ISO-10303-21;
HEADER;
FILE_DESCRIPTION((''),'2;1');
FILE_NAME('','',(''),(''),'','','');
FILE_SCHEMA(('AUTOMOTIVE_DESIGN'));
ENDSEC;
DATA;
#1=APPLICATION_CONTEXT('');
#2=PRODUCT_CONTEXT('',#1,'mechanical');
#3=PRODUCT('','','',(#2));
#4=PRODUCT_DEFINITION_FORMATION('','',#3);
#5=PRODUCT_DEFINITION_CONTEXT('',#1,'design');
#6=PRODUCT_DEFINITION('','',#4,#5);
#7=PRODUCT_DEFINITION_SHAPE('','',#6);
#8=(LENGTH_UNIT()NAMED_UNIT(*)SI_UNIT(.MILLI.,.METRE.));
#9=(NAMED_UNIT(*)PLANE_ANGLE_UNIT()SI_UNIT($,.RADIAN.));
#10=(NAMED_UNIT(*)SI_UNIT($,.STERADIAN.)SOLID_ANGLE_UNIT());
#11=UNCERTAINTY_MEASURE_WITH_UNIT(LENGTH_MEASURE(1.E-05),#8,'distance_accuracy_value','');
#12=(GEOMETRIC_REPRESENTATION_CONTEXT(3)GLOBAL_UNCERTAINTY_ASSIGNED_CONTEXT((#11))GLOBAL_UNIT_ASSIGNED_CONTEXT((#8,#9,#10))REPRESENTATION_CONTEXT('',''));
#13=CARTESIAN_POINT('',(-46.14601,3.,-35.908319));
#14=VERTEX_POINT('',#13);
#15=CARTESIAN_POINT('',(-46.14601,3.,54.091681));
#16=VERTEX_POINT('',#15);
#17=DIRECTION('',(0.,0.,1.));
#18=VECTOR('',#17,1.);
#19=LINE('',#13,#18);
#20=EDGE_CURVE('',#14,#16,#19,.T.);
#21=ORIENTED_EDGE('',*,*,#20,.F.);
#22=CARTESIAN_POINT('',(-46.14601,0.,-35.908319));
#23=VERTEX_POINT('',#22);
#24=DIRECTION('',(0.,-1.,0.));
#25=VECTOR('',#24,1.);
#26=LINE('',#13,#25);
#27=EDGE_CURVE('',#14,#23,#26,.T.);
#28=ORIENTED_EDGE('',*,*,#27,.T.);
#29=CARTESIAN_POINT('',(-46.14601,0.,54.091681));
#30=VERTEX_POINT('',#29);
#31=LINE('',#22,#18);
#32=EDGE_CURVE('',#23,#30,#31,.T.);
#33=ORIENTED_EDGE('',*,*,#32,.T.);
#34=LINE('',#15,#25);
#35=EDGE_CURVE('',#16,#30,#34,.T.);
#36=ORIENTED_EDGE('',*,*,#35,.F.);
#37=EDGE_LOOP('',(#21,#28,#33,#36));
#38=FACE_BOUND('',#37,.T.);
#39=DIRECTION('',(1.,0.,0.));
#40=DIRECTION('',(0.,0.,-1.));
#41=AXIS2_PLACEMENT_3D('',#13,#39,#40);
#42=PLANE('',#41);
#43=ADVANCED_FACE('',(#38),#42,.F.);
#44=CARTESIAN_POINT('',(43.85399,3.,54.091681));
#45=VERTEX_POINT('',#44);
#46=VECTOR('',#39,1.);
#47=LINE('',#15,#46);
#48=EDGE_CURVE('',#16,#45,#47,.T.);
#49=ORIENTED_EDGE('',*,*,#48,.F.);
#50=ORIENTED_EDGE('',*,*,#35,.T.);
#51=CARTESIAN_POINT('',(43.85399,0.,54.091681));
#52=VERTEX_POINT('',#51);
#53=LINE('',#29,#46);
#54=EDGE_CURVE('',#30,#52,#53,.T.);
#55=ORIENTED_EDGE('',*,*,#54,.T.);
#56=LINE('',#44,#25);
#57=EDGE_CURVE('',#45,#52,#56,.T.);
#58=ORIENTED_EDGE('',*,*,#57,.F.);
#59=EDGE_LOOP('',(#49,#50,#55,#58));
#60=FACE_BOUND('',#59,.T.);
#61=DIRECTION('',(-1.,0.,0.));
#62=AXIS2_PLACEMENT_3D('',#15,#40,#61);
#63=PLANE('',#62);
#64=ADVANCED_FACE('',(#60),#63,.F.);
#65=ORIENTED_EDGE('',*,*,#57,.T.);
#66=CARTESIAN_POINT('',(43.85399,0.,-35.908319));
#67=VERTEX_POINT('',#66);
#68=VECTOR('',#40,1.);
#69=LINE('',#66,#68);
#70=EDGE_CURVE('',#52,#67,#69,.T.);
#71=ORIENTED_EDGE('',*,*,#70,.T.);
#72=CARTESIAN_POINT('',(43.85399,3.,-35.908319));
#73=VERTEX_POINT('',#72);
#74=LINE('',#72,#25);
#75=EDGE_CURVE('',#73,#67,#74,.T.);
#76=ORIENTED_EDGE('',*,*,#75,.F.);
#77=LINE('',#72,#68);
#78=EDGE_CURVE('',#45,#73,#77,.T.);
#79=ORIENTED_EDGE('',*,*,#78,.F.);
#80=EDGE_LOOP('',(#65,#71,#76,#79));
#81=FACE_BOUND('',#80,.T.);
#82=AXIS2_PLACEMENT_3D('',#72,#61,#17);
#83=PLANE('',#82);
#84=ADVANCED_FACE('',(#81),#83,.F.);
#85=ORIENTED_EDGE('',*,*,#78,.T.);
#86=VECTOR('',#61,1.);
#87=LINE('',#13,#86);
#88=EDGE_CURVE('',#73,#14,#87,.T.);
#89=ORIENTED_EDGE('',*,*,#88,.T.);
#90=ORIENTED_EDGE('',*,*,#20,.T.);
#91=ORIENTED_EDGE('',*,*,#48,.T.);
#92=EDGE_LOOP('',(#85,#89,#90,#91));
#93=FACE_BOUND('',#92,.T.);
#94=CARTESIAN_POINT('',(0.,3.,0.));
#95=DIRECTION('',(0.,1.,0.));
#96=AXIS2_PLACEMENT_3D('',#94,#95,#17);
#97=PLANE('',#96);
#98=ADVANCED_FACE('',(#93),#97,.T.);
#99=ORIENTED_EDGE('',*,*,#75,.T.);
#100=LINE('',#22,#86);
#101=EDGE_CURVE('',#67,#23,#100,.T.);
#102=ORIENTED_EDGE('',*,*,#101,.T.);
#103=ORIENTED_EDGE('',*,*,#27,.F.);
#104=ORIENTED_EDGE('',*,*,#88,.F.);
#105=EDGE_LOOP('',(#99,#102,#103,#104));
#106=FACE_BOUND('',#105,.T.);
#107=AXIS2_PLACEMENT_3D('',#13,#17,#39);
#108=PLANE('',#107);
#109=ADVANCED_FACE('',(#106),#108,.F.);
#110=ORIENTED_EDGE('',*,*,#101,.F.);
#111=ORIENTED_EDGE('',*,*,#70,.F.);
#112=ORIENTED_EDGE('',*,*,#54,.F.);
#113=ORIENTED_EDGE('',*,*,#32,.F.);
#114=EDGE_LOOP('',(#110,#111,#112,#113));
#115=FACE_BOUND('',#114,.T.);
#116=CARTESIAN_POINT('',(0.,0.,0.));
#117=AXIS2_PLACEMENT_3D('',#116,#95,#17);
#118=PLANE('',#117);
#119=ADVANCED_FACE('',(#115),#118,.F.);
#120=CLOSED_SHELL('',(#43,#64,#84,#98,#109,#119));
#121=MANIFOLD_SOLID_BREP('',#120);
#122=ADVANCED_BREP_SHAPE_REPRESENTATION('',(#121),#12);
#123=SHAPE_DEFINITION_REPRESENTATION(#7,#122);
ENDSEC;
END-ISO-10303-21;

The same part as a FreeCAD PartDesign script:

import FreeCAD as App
import Part
import Sketcher

doc = App.newDocument("Part")
params = doc.addObject("Spreadsheet::Sheet", "Params")
for row, (alias, value) in enumerate([
    ("sketch1_width", "90 mm"),
    ("pad1_length", "3 mm"),
], start=1):
    params.set(f"A{row}", alias)
    params.set(f"B{row}", "=" + value)
    params.setAlias(f"B{row}", alias)

body = doc.addObject("PartDesign::Body", "Body")

# Sketch on XZ plane
sketch1 = doc.addObject("Sketcher::SketchObject", "Sketch")
body.addObject(sketch1)
sketch1.AttachmentSupport = (doc.XZ_Plane, [""])
sketch1.MapMode = "FlatFace"
sketch1.addGeometry(Part.LineSegment(App.Vector(-46, -36, 0), App.Vector(-46, 54, 0)), False)
sketch1.addGeometry(Part.LineSegment(App.Vector(-46, 54, 0), App.Vector(44, 54, 0)), False)
sketch1.addGeometry(Part.LineSegment(App.Vector(44, 54, 0), App.Vector(44, -36, 0)), False)
sketch1.addGeometry(Part.LineSegment(App.Vector(44, -36, 0), App.Vector(-46, -36, 0)), False)
sketch1.addConstraint(Sketcher.Constraint("Coincident", 0, 2, 1, 1))
sketch1.addConstraint(Sketcher.Constraint("Coincident", 1, 2, 2, 1))
sketch1.addConstraint(Sketcher.Constraint("Coincident", 2, 2, 3, 1))
sketch1.addConstraint(Sketcher.Constraint("Coincident", 3, 2, 0, 1))
sketch1.addConstraint(Sketcher.Constraint("Vertical", 0))
sketch1.addConstraint(Sketcher.Constraint("Horizontal", 1))
sketch1.addConstraint(Sketcher.Constraint("Vertical", 2))
sketch1.addConstraint(Sketcher.Constraint("Horizontal", 3))
sketch1.addConstraint(Sketcher.Constraint("Equal", 3, 0))
sketch1.addConstraint(Sketcher.Constraint("DistanceX", 1, 1, 1, 2, 90.0))
sketch1.addConstraint(Sketcher.Constraint("DistanceX", 0, 2, -1, 1, 46.14601))
sketch1.addConstraint(Sketcher.Constraint("DistanceY", -1, 1, 0, 2, 54.091681))
sketch1.setExpression("Constraints[9]", "Params.sketch1_width")
pad1 = doc.addObject("PartDesign::Pad", "Pad")
body.addObject(pad1)
pad1.Profile = sketch1
pad1.setExpression("Length", "Params.pad1_length")
pad1.Reversed = True

doc.recompute()
